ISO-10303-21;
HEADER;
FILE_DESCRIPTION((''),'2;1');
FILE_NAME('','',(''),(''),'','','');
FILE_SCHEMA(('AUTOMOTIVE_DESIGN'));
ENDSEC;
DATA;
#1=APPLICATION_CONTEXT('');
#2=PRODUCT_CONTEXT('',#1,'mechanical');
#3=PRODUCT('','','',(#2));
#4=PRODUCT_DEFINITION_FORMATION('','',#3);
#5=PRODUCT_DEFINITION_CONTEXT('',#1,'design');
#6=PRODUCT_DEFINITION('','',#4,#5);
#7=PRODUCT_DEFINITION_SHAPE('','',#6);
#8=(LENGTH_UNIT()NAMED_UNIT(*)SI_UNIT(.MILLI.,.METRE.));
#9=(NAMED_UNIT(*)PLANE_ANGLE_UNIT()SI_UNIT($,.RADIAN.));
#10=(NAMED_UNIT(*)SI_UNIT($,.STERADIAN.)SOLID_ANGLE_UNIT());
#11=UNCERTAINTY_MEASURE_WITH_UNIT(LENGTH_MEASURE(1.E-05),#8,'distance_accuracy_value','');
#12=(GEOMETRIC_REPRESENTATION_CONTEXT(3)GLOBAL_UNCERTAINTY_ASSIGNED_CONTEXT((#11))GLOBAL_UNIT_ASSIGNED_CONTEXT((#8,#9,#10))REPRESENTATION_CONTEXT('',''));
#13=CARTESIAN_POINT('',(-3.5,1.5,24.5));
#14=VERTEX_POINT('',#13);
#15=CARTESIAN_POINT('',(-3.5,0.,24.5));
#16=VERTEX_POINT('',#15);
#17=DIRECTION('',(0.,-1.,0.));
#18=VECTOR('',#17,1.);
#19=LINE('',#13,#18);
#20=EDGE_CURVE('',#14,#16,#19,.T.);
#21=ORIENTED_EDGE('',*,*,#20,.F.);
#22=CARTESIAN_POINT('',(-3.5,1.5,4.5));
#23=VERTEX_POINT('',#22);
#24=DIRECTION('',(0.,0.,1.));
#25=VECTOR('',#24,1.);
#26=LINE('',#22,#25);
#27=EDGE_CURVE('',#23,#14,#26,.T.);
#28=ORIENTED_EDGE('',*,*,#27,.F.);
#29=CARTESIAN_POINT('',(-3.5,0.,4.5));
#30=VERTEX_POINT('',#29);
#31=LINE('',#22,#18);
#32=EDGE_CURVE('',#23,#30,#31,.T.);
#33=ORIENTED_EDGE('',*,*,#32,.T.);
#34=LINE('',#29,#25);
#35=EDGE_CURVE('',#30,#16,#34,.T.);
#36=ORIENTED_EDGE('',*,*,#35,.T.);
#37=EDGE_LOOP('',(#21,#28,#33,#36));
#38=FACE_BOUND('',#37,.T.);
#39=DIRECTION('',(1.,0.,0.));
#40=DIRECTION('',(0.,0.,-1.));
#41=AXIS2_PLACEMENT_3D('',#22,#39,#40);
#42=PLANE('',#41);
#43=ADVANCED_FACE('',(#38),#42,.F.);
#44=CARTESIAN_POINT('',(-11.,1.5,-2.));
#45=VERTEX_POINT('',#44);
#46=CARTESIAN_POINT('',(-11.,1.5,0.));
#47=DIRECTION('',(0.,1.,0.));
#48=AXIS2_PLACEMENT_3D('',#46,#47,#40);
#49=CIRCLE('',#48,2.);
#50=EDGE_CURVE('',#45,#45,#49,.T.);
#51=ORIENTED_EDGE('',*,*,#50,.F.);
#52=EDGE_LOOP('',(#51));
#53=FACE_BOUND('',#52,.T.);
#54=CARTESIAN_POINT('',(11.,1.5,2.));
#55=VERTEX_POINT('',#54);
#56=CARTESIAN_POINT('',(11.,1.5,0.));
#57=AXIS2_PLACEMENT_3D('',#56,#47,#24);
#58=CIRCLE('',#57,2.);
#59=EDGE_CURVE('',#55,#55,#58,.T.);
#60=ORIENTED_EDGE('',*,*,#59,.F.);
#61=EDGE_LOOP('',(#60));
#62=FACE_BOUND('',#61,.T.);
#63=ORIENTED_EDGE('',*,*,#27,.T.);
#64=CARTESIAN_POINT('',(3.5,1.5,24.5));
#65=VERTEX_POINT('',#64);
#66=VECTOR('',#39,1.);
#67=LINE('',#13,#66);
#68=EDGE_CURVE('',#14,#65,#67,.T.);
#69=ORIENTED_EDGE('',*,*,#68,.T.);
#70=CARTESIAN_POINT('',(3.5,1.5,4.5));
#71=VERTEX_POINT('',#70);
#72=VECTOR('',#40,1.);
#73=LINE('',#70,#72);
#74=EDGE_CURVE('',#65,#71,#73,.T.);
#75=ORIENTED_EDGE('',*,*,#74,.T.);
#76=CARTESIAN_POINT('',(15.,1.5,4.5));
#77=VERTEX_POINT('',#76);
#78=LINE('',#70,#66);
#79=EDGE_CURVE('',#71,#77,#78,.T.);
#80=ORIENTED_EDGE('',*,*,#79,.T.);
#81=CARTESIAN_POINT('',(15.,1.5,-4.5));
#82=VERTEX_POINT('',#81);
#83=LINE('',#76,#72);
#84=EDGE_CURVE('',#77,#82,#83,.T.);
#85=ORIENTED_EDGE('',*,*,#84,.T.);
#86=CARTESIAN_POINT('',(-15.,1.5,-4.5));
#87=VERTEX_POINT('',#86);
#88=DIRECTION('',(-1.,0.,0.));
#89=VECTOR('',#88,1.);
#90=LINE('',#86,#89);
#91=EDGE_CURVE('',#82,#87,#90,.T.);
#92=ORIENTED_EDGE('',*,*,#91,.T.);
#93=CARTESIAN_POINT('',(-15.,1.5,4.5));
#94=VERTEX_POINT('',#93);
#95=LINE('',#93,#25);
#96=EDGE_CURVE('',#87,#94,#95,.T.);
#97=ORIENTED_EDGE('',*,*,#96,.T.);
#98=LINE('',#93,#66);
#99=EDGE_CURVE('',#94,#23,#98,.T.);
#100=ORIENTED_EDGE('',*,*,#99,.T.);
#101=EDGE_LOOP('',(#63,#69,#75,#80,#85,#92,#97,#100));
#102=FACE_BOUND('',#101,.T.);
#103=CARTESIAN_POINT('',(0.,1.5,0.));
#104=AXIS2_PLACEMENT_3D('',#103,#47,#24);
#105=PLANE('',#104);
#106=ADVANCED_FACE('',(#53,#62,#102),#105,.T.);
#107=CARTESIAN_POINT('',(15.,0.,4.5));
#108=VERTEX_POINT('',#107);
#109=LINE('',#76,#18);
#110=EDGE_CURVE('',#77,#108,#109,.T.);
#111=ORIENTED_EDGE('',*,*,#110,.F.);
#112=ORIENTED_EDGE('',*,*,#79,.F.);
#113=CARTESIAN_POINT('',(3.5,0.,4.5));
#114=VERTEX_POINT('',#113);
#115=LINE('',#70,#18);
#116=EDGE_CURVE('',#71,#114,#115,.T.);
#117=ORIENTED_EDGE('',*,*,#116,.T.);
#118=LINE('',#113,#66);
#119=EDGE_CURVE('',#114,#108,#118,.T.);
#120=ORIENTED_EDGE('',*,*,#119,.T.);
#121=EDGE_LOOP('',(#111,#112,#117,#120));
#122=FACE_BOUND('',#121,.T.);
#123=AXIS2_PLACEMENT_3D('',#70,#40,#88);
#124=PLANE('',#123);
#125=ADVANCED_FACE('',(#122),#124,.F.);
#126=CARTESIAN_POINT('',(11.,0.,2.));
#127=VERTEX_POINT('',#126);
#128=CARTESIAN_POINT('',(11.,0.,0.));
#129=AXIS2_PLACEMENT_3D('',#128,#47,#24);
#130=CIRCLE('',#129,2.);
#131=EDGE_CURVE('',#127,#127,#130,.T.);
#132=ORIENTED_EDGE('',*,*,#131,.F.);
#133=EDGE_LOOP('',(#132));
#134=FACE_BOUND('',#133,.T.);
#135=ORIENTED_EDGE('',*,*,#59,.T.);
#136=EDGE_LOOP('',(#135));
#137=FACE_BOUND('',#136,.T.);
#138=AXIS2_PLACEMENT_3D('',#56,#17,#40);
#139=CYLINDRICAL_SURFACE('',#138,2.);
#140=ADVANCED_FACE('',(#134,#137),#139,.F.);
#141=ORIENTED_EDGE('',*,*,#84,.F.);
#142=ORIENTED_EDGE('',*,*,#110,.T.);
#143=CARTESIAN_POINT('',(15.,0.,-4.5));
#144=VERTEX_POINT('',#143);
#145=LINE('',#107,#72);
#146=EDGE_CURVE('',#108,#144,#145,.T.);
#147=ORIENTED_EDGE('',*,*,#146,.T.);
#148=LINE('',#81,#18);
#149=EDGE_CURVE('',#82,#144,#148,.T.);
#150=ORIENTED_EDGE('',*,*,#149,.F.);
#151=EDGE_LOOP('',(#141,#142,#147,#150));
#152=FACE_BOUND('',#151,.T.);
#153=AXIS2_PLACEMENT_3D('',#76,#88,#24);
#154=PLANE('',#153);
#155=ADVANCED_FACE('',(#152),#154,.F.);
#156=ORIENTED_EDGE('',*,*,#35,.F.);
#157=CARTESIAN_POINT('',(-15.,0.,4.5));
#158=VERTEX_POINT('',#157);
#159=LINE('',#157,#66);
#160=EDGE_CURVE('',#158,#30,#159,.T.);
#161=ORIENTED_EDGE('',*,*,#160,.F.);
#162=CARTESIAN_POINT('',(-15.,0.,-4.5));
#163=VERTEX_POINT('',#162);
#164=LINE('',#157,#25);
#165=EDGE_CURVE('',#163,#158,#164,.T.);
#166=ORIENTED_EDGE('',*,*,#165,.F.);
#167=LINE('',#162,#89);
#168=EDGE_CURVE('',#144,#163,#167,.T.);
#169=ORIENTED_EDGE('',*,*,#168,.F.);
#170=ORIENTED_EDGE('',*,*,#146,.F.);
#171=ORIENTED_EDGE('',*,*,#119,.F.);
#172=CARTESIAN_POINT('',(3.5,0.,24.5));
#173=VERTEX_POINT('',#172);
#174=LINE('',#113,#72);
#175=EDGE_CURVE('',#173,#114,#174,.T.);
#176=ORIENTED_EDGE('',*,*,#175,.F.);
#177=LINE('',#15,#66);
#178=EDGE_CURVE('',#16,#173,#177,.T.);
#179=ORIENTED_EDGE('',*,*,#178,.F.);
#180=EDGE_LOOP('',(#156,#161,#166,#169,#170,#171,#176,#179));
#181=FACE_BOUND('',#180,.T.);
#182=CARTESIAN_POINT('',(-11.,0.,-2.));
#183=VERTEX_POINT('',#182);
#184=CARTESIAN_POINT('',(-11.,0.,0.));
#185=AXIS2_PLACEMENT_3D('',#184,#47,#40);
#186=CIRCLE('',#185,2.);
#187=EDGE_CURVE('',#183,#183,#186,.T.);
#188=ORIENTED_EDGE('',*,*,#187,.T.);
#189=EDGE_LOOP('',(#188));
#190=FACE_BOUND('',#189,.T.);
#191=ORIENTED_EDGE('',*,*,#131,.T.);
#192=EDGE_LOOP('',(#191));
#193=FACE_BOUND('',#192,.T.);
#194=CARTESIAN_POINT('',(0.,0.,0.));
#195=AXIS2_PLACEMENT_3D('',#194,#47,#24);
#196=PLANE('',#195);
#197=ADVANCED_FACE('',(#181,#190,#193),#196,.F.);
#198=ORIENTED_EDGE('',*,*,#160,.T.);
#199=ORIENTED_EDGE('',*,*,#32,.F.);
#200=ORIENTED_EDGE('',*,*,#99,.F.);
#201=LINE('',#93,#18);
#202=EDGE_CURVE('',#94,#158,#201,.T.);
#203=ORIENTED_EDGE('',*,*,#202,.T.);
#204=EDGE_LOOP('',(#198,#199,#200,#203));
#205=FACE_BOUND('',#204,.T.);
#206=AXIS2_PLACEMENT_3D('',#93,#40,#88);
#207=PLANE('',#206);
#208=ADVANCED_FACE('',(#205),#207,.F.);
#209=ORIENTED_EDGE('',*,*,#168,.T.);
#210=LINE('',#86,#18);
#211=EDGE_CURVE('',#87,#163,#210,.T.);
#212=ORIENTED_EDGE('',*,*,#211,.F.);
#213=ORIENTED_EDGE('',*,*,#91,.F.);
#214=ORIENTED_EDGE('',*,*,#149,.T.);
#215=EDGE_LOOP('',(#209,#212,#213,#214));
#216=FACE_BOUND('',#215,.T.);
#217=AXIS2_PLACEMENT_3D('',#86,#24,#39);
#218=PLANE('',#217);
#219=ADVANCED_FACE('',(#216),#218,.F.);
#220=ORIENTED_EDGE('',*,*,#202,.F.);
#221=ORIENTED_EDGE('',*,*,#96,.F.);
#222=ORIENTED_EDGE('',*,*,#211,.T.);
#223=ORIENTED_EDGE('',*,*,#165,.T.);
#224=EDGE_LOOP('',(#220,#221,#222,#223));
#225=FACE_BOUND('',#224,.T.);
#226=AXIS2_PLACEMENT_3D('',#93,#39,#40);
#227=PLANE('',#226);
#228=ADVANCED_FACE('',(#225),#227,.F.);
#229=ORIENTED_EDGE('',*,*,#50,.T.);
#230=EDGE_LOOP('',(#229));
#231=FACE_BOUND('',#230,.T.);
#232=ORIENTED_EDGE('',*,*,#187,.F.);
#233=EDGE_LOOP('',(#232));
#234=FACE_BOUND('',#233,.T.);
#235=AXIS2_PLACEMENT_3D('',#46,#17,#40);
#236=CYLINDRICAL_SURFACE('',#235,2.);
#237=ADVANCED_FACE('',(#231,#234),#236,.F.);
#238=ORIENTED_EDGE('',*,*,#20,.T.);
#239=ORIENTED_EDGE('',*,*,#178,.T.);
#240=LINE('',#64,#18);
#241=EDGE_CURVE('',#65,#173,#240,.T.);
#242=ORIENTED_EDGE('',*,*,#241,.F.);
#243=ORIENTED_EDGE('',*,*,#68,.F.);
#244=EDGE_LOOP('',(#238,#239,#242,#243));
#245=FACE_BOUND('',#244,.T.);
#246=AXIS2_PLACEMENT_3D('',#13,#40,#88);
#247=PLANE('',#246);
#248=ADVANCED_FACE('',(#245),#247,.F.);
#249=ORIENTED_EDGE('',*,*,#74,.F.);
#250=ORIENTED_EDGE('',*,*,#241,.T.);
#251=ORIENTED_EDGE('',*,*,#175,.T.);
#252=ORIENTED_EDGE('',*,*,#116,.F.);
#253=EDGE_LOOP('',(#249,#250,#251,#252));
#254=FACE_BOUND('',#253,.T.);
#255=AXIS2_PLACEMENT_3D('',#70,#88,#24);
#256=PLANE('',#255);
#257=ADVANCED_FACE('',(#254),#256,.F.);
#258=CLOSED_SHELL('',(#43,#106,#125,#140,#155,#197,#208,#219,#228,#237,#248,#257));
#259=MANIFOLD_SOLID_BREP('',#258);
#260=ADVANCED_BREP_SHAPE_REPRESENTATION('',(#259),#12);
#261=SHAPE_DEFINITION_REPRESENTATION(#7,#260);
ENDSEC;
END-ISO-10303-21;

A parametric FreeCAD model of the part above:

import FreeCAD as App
import Part
import Sketcher


def add_polygon(sketch, points):
    """Adds a closed chain of lines whose ends are joined by coincident constraints."""
    first, n = sketch.GeometryCount, len(points)
    for a, b in zip(points, points[1:] + points[:1]):
        sketch.addGeometry(Part.LineSegment(App.Vector(*a, 0), App.Vector(*b, 0)), False)
    for i in range(n):
        sketch.addConstraint(Sketcher.Constraint("Coincident", first + i, 2, first + (i + 1) % n, 1))

doc = App.newDocument("Part")
body = doc.addObject("PartDesign::Body", "Body")

# Sketch on XZ plane
sketch1 = doc.addObject("Sketcher::SketchObject", "Sketch")
body.addObject(sketch1)
sketch1.AttachmentSupport = (doc.XZ_Plane, [""])
sketch1.MapMode = "FlatFace"
add_polygon(sketch1, [(-15, -4.5), (-15, 4.5), (-3.5, 4.5), (-3.5, 24.5), (3.5, 24.5), (3.5, 4.5), (15, 4.5), (15, -4.5)])  # lines 0-7
sketch1.addGeometry(Part.Circle(App.Vector(11, 0, 0), App.Vector(0, 0, 1), 2), False)  # 8
sketch1.addGeometry(Part.Circle(App.Vector(-11, 0, 0), App.Vector(0, 0, 1), 2), False)  # 9
sketch1.addConstraint([
    Sketcher.Constraint("Vertical", 0),
    Sketcher.Constraint("Horizontal", 1),
    Sketcher.Constraint("Vertical", 2),
    Sketcher.Constraint("Horizontal", 3),
    Sketcher.Constraint("Vertical", 4),
    Sketcher.Constraint("Horizontal", 5),
    Sketcher.Constraint("Vertical", 6),
    Sketcher.Constraint("Horizontal", 7),
    Sketcher.Constraint("Equal", 8, 9),
    Sketcher.Constraint("Symmetric", 8, 3, 9, 3, -1, 1),
    Sketcher.Constraint("Symmetric", 0, 2, 6, 2, -1, 1),
    Sketcher.Constraint("Symmetric", 1, 2, 4, 2, -2),
    Sketcher.Constraint("PointOnObject", 8, 3, -1),
    Sketcher.Constraint("Diameter", 8, 4.0),
    Sketcher.Constraint("DistanceX", 3, 1, 3, 2, 7.0),
    Sketcher.Constraint("DistanceX", 7, 2, 7, 1, 30.0),
    Sketcher.Constraint("DistanceY", 0, 1, 0, 2, 9.0),
    Sketcher.Constraint("DistanceY", 2, 1, 2, 2, 20.0),
    Sketcher.Constraint("DistanceX", -1, 1, 8, 3, 11.0),
])
pad1 = doc.addObject("PartDesign::Pad", "Pad")
body.addObject(pad1)
pad1.Profile = sketch1
pad1.Length = 1.5
pad1.Reversed = True

doc.recompute()
